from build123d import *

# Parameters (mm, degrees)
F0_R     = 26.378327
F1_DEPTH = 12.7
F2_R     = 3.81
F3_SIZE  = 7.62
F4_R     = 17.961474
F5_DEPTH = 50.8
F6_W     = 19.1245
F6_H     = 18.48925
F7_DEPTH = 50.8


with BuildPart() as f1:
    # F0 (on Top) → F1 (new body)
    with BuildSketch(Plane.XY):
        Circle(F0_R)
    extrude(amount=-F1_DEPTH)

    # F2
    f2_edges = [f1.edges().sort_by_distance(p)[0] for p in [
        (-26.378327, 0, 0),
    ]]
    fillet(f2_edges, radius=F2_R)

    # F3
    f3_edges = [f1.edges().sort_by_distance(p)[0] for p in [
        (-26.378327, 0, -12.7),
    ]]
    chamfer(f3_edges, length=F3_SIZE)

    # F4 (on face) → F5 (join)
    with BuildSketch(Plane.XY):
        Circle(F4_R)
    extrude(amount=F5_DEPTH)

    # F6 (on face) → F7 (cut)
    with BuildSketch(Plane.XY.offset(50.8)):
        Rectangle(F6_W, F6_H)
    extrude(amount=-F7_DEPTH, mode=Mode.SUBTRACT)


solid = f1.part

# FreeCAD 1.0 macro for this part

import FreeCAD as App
import Part
import Sketcher
Q = App.Units.Quantity


def edges_at(feature, points):
    """Names of the edges that pass closest to the given points."""
    edges = feature.Shape.Edges
    near = lambda p: min(range(len(edges)), key=lambda i: edges[i].distToShape(Part.Vertex(*p))[0])
    return sorted({f"Edge{near(p) + 1}" for p in points})


def add_polygon(sketch, points):
    """Adds a closed chain of lines whose ends are joined by coincident constraints."""
    first, n = sketch.GeometryCount, len(points)
    for a, b in zip(points, points[1:] + points[:1]):
        sketch.addGeometry(Part.LineSegment(App.Vector(*a, 0), App.Vector(*b, 0)), False)
    for i in range(n):
        sketch.addConstraint(Sketcher.Constraint("Coincident", first + i, 2, first + (i + 1) % n, 1))

doc = App.newDocument("Part")
params = doc.addObject("Spreadsheet::Sheet", "Params")
for row, (alias, value) in enumerate([
    ("pad1_length", "0.5 in"),
    ("fillet_radius", "0.15 in"),
    ("chamfer_size", "0.3 in"),
    ("pad2_length", "2 in"),
    ("pocket1_length", "2 in"),
], start=1):
    params.set(f"A{row}", alias)
    params.set(f"B{row}", "=" + value)
    params.setAlias(f"B{row}", alias)

body = doc.addObject("PartDesign::Body", "Body")

# Sketch on XY plane
sketch1 = body.newObject("Sketcher::SketchObject", "Sketch")
sketch1.AttachmentSupport = (doc.getObject("XY_Plane"), [""])
sketch1.MapMode = "FlatFace"
sketch1.addGeometry(Part.Circle(App.Vector(0, 0, 0), App.Vector(0, 0, 1), 26), False)
sketch1.addConstraint(Sketcher.Constraint("Coincident", 0, 3, -1, 1))
sketch1.addConstraint(Sketcher.Constraint("Diameter", 0, Q("52.756654 mm")))
pad1 = body.newObject("PartDesign::Pad", "Pad")
pad1.Profile = sketch1
pad1.setExpression("Length", "Params.pad1_length")
pad1.Reversed = True
doc.recompute()

fillet = body.newObject("PartDesign::Fillet", "Fillet")
fillet.Base = (pad1, edges_at(pad1, [(-26.378, 0, 0)]))
fillet.setExpression("Radius", "Params.fillet_radius")
doc.recompute()

chamfer = body.newObject("PartDesign::Chamfer", "Chamfer")
chamfer.Base = (fillet, edges_at(fillet, [(-26.378, 0, -12.7)]))
chamfer.setExpression("Size", "Params.chamfer_size")

# Sketch on XY plane
sketch2 = body.newObject("Sketcher::SketchObject", "Sketch001")
sketch2.AttachmentSupport = (doc.getObject("XY_Plane"), [""])
sketch2.MapMode = "FlatFace"
sketch2.addGeometry(Part.Circle(App.Vector(0, 0, 0), App.Vector(0, 0, 1), 18), False)
sketch2.addConstraint(Sketcher.Constraint("Coincident", 0, 3, -1, 1))
sketch2.addConstraint(Sketcher.Constraint("Diameter", 0, Q("35.922948 mm")))
pad2 = body.newObject("PartDesign::Pad", "Pad001")
pad2.Profile = sketch2
pad2.setExpression("Length", "Params.pad2_length")

# Sketch on XY plane
sketch3 = body.newObject("Sketcher::SketchObject", "Sketch002")
sketch3.AttachmentSupport = (doc.getObject("XY_Plane"), [""])
sketch3.MapMode = "FlatFace"
sketch3.AttachmentOffset = App.Placement(App.Vector(0, 0, 2 * 25.4), App.Rotation())
add_polygon(sketch3, [(-10, 9), (-10, -9), (10, -9), (10, 9)])  # lines 0-3
sketch3.addConstraint(Sketcher.Constraint("Vertical", 0))
sketch3.addConstraint(Sketcher.Constraint("Horizontal", 1))
sketch3.addConstraint(Sketcher.Constraint("Vertical", 2))
sketch3.addConstraint(Sketcher.Constraint("Horizontal", 3))
sketch3.addConstraint(Sketcher.Constraint("Symmetric", 0, 2, 2, 2, -1, 1))
sketch3.addConstraint(Sketcher.Constraint("DistanceX", 1, 1, 1, 2, Q("19.1245 mm")))
sketch3.addConstraint(Sketcher.Constraint("DistanceY", 0, 2, 0, 1, Q("18.48925 mm")))
pocket1 = body.newObject("PartDesign::Pocket", "Pocket")
pocket1.Profile = sketch3
pocket1.setExpression("Length", "Params.pocket1_length")

doc.recompute()
